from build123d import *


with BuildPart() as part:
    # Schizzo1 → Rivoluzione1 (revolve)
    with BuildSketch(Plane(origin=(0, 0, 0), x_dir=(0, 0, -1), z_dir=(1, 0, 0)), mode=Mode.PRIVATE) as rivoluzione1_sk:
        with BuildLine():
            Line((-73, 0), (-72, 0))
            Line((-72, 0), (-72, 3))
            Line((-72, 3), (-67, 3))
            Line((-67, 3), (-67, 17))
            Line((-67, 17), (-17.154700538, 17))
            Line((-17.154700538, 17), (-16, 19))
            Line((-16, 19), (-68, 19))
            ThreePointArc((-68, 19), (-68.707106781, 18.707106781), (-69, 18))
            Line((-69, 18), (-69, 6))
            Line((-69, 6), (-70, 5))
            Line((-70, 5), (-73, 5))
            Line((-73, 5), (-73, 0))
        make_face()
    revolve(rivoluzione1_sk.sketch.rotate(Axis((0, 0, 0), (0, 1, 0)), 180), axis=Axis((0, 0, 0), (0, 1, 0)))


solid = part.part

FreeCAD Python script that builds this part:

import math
import FreeCAD as App
import Part
import Sketcher
Q = App.Units.Quantity

doc = App.newDocument("Part")
params = doc.addObject("Spreadsheet::Sheet", "Params")
for row, (alias, value) in enumerate([
    ("sketch1_radius", "1 mm"),
    ("sketch1_width", "3 mm"),
    ("sketch1_width2", "14 mm"),
    ("sketch1_width3", "12 mm"),
    ("sketch1_width4", "5 mm"),
    ("revolution_angle", "360 deg"),
], start=1):
    params.set(f"A{row}", alias)
    params.set(f"B{row}", "=" + value)
    params.setAlias(f"B{row}", alias)

body = doc.addObject("PartDesign::Body", "Body")

# Sketch on YZ plane
sketch1 = body.newObject("Sketcher::SketchObject", "Sketch")
sketch1.AttachmentSupport = (doc.getObject("YZ_Plane"), [""])
sketch1.MapMode = "FlatFace"
sketch1.addGeometry([
    Part.LineSegment(App.Vector(0, 73, 0), App.Vector(0, 72, 0)),  # 0
    Part.LineSegment(App.Vector(0, 72, 0), App.Vector(3, 72, 0)),  # 1
    Part.LineSegment(App.Vector(3, 72, 0), App.Vector(3, 67, 0)),  # 2
    Part.LineSegment(App.Vector(3, 67, 0), App.Vector(17, 67, 0)),  # 3
    Part.LineSegment(App.Vector(17, 67, 0), App.Vector(17, 17.2, 0)),  # 4
    Part.LineSegment(App.Vector(17, 17.2, 0), App.Vector(19, 16, 0)),  # 5
    Part.LineSegment(App.Vector(19, 16, 0), App.Vector(19, 68, 0)),  # 6
    Part.ArcOfCircle(Part.Circle(App.Vector(18, 68, 0), App.Vector(0, 0, 1), 1), math.radians(0), math.radians(90)),  # 7
    Part.LineSegment(App.Vector(18, 69, 0), App.Vector(6, 69, 0)),  # 8
    Part.LineSegment(App.Vector(6, 69, 0), App.Vector(5, 70, 0)),  # 9
    Part.LineSegment(App.Vector(5, 70, 0), App.Vector(5, 73, 0)),  # 10
    Part.LineSegment(App.Vector(5, 73, 0), App.Vector(0, 73, 0)),  # 11
], False)
sketch1.addConstraint([
    Sketcher.Constraint("Coincident", 0, 2, 1, 1),
    Sketcher.Constraint("Coincident", 1, 2, 2, 1),
    Sketcher.Constraint("Coincident", 2, 2, 3, 1),
    Sketcher.Constraint("Coincident", 3, 2, 4, 1),
    Sketcher.Constraint("Coincident", 4, 2, 5, 1),
    Sketcher.Constraint("Coincident", 5, 2, 6, 1),
    Sketcher.Constraint("Tangent", 6, 2, 7, 1),
    Sketcher.Constraint("Tangent", 7, 2, 8, 1),
    Sketcher.Constraint("Coincident", 8, 2, 9, 1),
    Sketcher.Constraint("Coincident", 9, 2, 10, 1),
    Sketcher.Constraint("Coincident", 10, 2, 11, 1),
    Sketcher.Constraint("Coincident", 11, 2, 0, 1),
    Sketcher.Constraint("Vertical", 0),
    Sketcher.Constraint("Horizontal", 1),
    Sketcher.Constraint("Vertical", 2),
    Sketcher.Constraint("Horizontal", 3),
    Sketcher.Constraint("Vertical", 4),
    Sketcher.Constraint("Vertical", 6),
    Sketcher.Constraint("Horizontal", 8),
    Sketcher.Constraint("Vertical", 10),
    Sketcher.Constraint("Horizontal", 11),
    Sketcher.Constraint("PointOnObject", 0, 2, -2),
    Sketcher.Constraint("Equal", 11, 2),
    Sketcher.Constraint("Equal", 1, 10),
    Sketcher.Constraint("Radius", 7, 1.0),
    Sketcher.Constraint("DistanceX", 1, 1, 1, 2, 3.0),
    Sketcher.Constraint("DistanceX", 3, 1, 3, 2, 14.0),
    Sketcher.Constraint("DistanceX", 8, 2, 8, 1, 12.0),
    Sketcher.Constraint("DistanceX", 11, 2, 11, 1, 5.0),
    Sketcher.Constraint("DistanceY", 0, 2, 0, 1, 1.0),
    Sketcher.Constraint("DistanceY", 6, 1, 6, 2, 52.0),
    Sketcher.Constraint("Angle", 5, Q("-30 deg")),
    Sketcher.Constraint("Angle", 9, Q("135 deg")),
    Sketcher.Constraint("DistanceX", -1, 1, 7, 3, 18.0),
    Sketcher.Constraint("DistanceY", -1, 1, 7, 3, 68.0),
])
sketch1.setExpression("Constraints[24]", "Params.sketch1_radius")
sketch1.setExpression("Constraints[25]", "Params.sketch1_width")
sketch1.setExpression("Constraints[26]", "Params.sketch1_width2")
sketch1.setExpression("Constraints[27]", "Params.sketch1_width3")
sketch1.setExpression("Constraints[28]", "Params.sketch1_width4")
revolution = body.newObject("PartDesign::Revolution", "Revolution")
revolution.Profile = sketch1
revolution.ReferenceAxis = (sketch1, ["H_Axis"])
revolution.setExpression("Angle", "Params.revolution_angle")

doc.recompute()
